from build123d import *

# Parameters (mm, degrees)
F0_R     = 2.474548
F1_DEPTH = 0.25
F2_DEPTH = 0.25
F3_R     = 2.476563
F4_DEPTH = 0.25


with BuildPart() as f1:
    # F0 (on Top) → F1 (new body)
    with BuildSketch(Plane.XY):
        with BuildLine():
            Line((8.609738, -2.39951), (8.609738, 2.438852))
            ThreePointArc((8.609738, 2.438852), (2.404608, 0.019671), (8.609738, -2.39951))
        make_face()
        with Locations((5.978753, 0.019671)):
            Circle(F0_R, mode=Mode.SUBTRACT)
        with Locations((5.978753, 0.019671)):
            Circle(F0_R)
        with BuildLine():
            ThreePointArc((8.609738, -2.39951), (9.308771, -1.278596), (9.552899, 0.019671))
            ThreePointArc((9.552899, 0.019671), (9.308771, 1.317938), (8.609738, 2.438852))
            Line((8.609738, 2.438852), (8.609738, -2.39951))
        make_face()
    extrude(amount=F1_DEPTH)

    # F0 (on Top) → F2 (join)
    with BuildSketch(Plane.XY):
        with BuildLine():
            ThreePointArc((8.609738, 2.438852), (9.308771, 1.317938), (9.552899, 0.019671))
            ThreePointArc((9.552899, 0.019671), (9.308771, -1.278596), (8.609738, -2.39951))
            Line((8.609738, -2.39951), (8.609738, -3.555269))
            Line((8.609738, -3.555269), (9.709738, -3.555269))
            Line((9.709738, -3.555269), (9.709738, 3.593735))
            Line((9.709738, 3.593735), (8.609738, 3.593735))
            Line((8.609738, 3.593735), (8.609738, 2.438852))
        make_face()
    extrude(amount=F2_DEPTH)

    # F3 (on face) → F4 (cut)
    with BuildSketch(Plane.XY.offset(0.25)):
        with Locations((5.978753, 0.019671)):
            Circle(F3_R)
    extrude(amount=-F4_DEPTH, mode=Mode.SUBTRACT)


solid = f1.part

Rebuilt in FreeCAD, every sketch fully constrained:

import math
import FreeCAD as App
import Part
import Sketcher
from FreeCAD import Vector

doc = App.newDocument("Part")
body = doc.addObject("PartDesign::Body", "Body")

sketch1 = body.newObject("Sketcher::SketchObject", "Sketch")
sketch1.AttachmentSupport = (doc.getObject("XY_Plane"), [""])
sketch1.MapMode = "FlatFace"
sketch1.addGeometry([
    Part.ArcOfCircle(Part.Circle(Vector(6, 0, 0), Vector(0, 0, 1), 3.6), math.radians(43), math.radians(317)),
    Part.ArcOfCircle(Part.Circle(Vector(6, 0, 0), Vector(0, 0, 1), 3.6), math.radians(-43), math.radians(0)),
    Part.ArcOfCircle(Part.Circle(Vector(6, 0, 0), Vector(0, 0, 1), 3.6), math.radians(0), math.radians(43)),
], False)
sketch1.addConstraint([
    Sketcher.Constraint("Tangent", 0, 2, 1, 1),
    Sketcher.Constraint("Tangent", 1, 2, 2, 1),
    Sketcher.Constraint("Tangent", 2, 2, 0, 1),
    Sketcher.Constraint("Horizontal", 2, 3, 1, 2),
    Sketcher.Constraint("Vertical", 0, 2, 2, 2),
    Sketcher.Constraint("Radius", 1, 3.57415),
    Sketcher.Constraint("DistanceX", -1, 1, 1, 2, 9.552899),
    Sketcher.Constraint("DistanceY", -1, 1, 0, 3, 0.019671),
    Sketcher.Constraint("DistanceX", -1, 1, 0, 2, 8.609738),
])
pad1 = body.newObject("PartDesign::Pad", "Pad")
pad1.Profile = sketch1
pad1.Length = 0.25

sketch2 = body.newObject("Sketcher::SketchObject", "Sketch001")
sketch2.AttachmentSupport = (doc.getObject("XY_Plane"), [""])
sketch2.MapMode = "FlatFace"
sketch2.addGeometry([
    Part.ArcOfCircle(Part.Circle(Vector(6, 0, 0), Vector(0, 0, 1), 3.6), math.radians(0), math.radians(43)),
    Part.ArcOfCircle(Part.Circle(Vector(6, 0, 0), Vector(0, 0, 1), 3.6), math.radians(-43), math.radians(0)),
    Part.LineSegment(Vector(8.6, -2.4, 0), Vector(8.6, -3.6, 0)),
    Part.LineSegment(Vector(8.6, -3.6, 0), Vector(9.7, -3.6, 0)),
    Part.LineSegment(Vector(9.7, -3.6, 0), Vector(9.7, 3.6, 0)),
    Part.LineSegment(Vector(9.7, 3.6, 0), Vector(8.6, 3.6, 0)),
    Part.LineSegment(Vector(8.6, 3.6, 0), Vector(8.6, 2.4, 0)),
], False)
sketch2.addConstraint([
    Sketcher.Constraint("Tangent", 0, 1, 1, 2),
    Sketcher.Constraint("Coincident", 1, 1, 2, 1),
    Sketcher.Constraint("Coincident", 2, 2, 3, 1),
    Sketcher.Constraint("Coincident", 3, 2, 4, 1),
    Sketcher.Constraint("Coincident", 4, 2, 5, 1),
    Sketcher.Constraint("Coincident", 5, 2, 6, 1),
    Sketcher.Constraint("Coincident", 6, 2, 0, 2),
    Sketcher.Constraint("Vertical", 2),
    Sketcher.Constraint("Horizontal", 3),
    Sketcher.Constraint("Vertical", 4),
    Sketcher.Constraint("Horizontal", 5),
    Sketcher.Constraint("Vertical", 6),
    Sketcher.Constraint("Equal", 0, 1),
    Sketcher.Constraint("Horizontal", 1, 3, 0, 1),
    Sketcher.Constraint("Vertical", 2, 2, 5, 2),
    Sketcher.Constraint("DistanceX", 3, 1, 3, 2, 1.1),
    Sketcher.Constraint("Radius", 0, 3.57415),
    Sketcher.Constraint("DistanceY", 2, 2, 2, 1, 1.155759),
    Sketcher.Constraint("DistanceX", -1, 1, 0, 1, 9.552899),
    Sketcher.Constraint("DistanceY", 4, 1, 4, 2, 7.149004),
    Sketcher.Constraint("DistanceY", 6, 2, 6, 1, 1.154883),
    Sketcher.Constraint("DistanceY", -1, 1, 0, 3, 0.019669),
])
pad2 = body.newObject("PartDesign::Pad", "Pad001")
pad2.Profile = sketch2
pad2.Length = 0.25

sketch3 = body.newObject("Sketcher::SketchObject", "Sketch002")
sketch3.AttachmentSupport = (doc.getObject("XY_Plane"), [""])
sketch3.MapMode = "FlatFace"
sketch3.AttachmentOffset = App.Placement(Vector(0, 0, 0.25), App.Rotation())
sketch3.addGeometry(Part.Circle(Vector(6, 0, 0), Vector(0, 0, 1), 2.5), False)
sketch3.addConstraint([
    Sketcher.Constraint("Diameter", 0, 4.953126),
    Sketcher.Constraint("DistanceY", -1, 1, 0, 3, 0.019671),
    Sketcher.Constraint("DistanceX", -1, 1, 0, 3, 5.978753),
])
pocket1 = body.newObject("PartDesign::Pocket", "Pocket")
pocket1.Profile = sketch3
pocket1.Length = 0.25

doc.recompute()
